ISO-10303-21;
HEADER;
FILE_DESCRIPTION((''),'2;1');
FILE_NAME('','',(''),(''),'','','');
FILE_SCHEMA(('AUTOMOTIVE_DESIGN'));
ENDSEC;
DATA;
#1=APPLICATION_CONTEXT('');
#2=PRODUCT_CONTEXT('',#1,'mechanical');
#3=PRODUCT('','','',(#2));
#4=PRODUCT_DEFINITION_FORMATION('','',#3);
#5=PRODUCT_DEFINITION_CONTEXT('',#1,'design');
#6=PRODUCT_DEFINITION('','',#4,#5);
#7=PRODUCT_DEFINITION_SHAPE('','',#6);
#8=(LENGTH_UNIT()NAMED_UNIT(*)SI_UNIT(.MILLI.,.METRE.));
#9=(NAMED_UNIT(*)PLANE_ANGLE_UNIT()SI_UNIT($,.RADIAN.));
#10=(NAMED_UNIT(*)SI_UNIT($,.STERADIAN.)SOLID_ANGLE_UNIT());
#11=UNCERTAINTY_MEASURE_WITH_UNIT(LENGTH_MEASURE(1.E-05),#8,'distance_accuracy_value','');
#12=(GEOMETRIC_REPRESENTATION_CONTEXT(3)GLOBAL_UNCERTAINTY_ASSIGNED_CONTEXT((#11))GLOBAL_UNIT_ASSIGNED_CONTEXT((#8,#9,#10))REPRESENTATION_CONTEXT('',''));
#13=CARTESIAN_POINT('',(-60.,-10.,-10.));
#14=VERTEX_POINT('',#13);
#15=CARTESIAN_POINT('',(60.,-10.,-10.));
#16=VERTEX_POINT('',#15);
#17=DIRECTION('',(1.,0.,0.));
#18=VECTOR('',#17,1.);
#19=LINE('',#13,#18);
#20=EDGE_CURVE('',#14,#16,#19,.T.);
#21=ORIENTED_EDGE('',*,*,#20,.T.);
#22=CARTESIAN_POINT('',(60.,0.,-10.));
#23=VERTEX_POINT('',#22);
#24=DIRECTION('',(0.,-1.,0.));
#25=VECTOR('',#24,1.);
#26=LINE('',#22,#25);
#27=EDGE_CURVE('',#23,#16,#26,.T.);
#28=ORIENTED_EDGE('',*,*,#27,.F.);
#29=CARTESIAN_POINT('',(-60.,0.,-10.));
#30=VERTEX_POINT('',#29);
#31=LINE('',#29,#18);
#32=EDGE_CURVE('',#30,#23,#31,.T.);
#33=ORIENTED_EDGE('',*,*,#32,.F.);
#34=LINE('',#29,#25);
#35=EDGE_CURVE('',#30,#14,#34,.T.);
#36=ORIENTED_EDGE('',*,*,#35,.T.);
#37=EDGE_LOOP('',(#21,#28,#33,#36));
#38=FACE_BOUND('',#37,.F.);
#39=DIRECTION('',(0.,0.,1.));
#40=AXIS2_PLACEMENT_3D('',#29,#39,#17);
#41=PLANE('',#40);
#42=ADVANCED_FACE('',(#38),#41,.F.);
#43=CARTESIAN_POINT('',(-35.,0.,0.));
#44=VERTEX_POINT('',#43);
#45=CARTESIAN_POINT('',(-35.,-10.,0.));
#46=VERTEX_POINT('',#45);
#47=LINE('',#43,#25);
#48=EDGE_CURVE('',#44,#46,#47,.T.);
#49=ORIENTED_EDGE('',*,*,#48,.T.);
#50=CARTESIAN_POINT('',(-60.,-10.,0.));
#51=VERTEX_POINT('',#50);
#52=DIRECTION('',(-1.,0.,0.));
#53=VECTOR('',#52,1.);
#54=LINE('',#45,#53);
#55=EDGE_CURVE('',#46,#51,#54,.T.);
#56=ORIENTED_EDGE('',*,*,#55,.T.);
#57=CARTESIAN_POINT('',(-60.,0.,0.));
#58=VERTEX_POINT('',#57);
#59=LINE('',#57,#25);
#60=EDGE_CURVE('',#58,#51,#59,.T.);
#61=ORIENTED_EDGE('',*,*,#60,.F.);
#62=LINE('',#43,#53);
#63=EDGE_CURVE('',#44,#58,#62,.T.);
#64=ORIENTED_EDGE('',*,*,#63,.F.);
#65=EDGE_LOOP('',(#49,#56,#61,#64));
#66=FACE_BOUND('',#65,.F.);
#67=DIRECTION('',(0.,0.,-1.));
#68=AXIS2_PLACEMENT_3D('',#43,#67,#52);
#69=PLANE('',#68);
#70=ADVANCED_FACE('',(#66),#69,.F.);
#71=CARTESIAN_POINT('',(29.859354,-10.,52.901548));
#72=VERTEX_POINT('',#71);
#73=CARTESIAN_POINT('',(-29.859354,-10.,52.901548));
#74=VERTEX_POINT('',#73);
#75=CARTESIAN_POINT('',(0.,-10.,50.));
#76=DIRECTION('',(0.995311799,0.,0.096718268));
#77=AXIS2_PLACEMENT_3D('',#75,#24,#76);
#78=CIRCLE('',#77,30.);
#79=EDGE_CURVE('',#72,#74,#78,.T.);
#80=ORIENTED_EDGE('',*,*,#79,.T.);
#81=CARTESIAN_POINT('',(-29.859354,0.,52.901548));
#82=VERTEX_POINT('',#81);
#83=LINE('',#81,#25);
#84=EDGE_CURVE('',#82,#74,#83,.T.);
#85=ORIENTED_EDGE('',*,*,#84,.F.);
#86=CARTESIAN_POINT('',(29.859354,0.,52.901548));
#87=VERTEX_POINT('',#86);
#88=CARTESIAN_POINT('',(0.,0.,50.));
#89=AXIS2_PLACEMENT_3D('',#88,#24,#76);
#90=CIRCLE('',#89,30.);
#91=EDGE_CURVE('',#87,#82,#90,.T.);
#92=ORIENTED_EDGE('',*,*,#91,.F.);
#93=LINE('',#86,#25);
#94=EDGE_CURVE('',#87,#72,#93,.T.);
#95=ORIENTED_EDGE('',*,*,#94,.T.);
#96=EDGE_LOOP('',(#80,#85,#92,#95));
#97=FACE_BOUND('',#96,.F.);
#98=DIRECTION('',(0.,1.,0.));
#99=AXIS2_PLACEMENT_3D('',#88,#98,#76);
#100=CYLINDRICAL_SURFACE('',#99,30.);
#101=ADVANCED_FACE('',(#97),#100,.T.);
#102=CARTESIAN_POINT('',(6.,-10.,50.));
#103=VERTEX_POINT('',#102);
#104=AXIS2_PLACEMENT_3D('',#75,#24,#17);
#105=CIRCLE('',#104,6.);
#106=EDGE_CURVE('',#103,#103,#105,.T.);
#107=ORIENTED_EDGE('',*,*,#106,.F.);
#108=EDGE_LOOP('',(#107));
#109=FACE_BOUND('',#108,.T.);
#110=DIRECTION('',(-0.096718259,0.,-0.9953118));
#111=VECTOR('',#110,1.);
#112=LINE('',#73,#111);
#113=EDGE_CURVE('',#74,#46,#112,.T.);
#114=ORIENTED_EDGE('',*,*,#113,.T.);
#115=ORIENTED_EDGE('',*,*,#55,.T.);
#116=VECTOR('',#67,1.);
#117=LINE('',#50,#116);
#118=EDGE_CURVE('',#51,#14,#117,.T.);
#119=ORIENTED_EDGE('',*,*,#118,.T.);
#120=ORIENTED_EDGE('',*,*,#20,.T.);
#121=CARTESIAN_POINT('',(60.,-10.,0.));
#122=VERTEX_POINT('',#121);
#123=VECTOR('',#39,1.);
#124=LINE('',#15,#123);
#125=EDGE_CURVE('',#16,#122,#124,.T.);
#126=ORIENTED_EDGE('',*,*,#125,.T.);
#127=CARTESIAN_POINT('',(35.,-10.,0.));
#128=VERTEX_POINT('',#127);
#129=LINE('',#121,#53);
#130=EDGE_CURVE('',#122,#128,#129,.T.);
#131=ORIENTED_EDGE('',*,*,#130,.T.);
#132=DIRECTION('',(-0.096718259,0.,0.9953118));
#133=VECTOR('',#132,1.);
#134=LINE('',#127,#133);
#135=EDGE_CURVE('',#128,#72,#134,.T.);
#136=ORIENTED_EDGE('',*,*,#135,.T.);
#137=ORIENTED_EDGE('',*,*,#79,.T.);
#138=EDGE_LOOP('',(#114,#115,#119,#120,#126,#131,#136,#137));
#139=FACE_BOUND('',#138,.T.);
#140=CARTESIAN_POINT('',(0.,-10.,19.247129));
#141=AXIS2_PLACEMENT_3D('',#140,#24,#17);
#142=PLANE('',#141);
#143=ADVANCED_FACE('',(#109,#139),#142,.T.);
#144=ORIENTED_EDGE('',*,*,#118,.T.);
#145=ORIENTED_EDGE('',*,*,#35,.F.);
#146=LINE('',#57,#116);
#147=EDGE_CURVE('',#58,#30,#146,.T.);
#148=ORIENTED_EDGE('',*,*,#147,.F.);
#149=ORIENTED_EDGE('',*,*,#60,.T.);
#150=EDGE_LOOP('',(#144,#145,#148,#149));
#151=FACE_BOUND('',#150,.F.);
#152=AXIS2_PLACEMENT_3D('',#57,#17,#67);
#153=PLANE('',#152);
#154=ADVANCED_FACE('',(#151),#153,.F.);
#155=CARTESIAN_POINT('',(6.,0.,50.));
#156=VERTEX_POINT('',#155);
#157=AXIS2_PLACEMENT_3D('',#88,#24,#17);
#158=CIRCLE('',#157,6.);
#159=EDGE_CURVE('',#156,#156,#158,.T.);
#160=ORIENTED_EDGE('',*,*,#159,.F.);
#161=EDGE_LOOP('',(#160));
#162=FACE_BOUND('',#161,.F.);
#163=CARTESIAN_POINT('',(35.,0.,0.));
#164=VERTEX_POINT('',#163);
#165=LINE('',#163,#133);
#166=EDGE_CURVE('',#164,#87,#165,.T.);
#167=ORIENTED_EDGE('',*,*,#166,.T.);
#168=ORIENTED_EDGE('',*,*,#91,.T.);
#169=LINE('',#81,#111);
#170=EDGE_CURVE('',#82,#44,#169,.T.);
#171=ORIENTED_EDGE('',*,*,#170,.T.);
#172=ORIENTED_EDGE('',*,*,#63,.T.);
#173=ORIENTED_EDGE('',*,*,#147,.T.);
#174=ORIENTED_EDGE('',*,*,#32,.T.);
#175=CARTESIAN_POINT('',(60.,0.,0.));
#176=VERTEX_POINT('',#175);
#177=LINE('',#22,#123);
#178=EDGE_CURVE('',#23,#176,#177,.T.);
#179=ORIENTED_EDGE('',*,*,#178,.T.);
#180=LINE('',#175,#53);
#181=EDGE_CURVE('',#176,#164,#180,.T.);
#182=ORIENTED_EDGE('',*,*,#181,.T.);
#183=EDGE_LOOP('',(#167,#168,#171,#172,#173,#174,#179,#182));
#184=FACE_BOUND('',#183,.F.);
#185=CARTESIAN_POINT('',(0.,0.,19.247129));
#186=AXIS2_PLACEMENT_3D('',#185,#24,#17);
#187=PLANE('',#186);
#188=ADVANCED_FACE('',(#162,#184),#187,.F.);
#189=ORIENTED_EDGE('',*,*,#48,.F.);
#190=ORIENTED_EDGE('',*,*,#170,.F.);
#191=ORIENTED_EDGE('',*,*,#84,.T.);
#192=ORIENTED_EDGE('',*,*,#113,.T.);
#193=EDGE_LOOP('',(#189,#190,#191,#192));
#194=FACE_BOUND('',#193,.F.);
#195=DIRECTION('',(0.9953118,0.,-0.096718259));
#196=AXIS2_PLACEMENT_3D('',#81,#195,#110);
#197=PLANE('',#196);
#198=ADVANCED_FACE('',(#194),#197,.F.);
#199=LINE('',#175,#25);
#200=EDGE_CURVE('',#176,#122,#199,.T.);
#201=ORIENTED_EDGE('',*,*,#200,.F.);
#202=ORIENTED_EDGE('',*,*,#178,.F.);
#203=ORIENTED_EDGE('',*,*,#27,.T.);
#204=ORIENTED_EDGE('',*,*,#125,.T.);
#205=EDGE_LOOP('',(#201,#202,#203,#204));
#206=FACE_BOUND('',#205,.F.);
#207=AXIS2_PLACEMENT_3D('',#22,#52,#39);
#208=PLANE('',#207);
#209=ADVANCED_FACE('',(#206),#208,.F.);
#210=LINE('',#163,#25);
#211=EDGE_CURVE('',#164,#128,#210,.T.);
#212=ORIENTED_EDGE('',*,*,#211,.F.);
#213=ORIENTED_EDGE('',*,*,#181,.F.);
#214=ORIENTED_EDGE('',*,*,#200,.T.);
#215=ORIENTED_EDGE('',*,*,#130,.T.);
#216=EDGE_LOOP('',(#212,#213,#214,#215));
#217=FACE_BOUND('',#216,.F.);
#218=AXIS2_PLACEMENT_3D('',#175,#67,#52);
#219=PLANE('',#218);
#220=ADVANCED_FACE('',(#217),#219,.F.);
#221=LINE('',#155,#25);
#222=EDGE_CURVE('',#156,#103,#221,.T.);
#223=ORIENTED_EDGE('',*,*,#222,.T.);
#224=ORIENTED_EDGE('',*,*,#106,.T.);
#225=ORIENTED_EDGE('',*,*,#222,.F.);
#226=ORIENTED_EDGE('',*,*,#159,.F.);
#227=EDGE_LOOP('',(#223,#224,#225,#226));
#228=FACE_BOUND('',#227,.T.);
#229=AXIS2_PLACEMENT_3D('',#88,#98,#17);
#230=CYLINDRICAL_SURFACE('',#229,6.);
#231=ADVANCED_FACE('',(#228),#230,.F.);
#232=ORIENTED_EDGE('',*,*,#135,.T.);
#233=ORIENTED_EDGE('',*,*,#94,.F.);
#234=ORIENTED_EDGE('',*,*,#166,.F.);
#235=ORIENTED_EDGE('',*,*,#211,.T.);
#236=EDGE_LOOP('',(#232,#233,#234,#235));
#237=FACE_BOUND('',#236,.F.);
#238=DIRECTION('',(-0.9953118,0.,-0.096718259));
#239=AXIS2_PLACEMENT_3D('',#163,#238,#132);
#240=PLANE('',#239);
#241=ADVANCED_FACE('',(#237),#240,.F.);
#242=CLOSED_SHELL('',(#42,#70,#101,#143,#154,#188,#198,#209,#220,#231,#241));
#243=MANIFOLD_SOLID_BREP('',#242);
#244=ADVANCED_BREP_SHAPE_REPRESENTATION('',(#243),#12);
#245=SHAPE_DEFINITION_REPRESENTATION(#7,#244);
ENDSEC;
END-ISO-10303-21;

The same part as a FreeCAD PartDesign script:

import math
import FreeCAD as App
import Part
import Sketcher

doc = App.newDocument("Part")
body = doc.addObject("PartDesign::Body", "Body")

# Sketch on XZ plane
sketch1 = body.newObject("Sketcher::SketchObject", "Sketch")
sketch1.AttachmentSupport = (doc.getObject("XZ_Plane"), [""])
sketch1.MapMode = "FlatFace"
sketch1.addGeometry(Part.LineSegment(App.Vector(35, 0, 0), App.Vector(30, 53, 0)), False)
sketch1.addGeometry(Part.ArcOfCircle(Part.Circle(App.Vector(0, 50, 0), App.Vector(0, 0, 1), 30), math.radians(6), math.radians(174)), False)
sketch1.addGeometry(Part.LineSegment(App.Vector(-30, 53, 0), App.Vector(-35, 0, 0)), False)
sketch1.addGeometry(Part.LineSegment(App.Vector(-35, 0, 0), App.Vector(-60, 0, 0)), False)
sketch1.addGeometry(Part.LineSegment(App.Vector(-60, 0, 0), App.Vector(-60, -10, 0)), False)
sketch1.addGeometry(Part.LineSegment(App.Vector(-60, -10, 0), App.Vector(60, -10, 0)), False)
sketch1.addGeometry(Part.LineSegment(App.Vector(60, -10, 0), App.Vector(60, 0, 0)), False)
sketch1.addGeometry(Part.LineSegment(App.Vector(60, 0, 0), App.Vector(35, 0, 0)), False)
sketch1.addGeometry(Part.Circle(App.Vector(0, 50, 0), App.Vector(0, 0, 1), 6), False)
sketch1.addConstraint(Sketcher.Constraint("Tangent", 0, 2, 1, 1))
sketch1.addConstraint(Sketcher.Constraint("Tangent", 1, 2, 2, 1))
sketch1.addConstraint(Sketcher.Constraint("Coincident", 2, 2, 3, 1))
sketch1.addConstraint(Sketcher.Constraint("Coincident", 3, 2, 4, 1))
sketch1.addConstraint(Sketcher.Constraint("Coincident", 4, 2, 5, 1))
sketch1.addConstraint(Sketcher.Constraint("Coincident", 5, 2, 6, 1))
sketch1.addConstraint(Sketcher.Constraint("Coincident", 6, 2, 7, 1))
sketch1.addConstraint(Sketcher.Constraint("Coincident", 7, 2, 0, 1))
sketch1.addConstraint(Sketcher.Constraint("Horizontal", 3))
sketch1.addConstraint(Sketcher.Constraint("Vertical", 4))
sketch1.addConstraint(Sketcher.Constraint("Horizontal", 5))
sketch1.addConstraint(Sketcher.Constraint("Vertical", 6))
sketch1.addConstraint(Sketcher.Constraint("Horizontal", 7))
sketch1.addConstraint(Sketcher.Constraint("Coincident", 8, 3, 1, 3))
sketch1.addConstraint(Sketcher.Constraint("Symmetric", 3, 2, 6, 2, -1, 1))
sketch1.addConstraint(Sketcher.Constraint("Symmetric", 0, 2, 1, 2, -2))
sketch1.addConstraint(Sketcher.Constraint("PointOnObject", 2, 2, -1))
sketch1.addConstraint(Sketcher.Constraint("Diameter", 8, 12.0))
sketch1.addConstraint(Sketcher.Constraint("Radius", 1, 30.0))
sketch1.addConstraint(Sketcher.Constraint("DistanceX", 3, 2, 3, 1, 25.0))
sketch1.addConstraint(Sketcher.Constraint("DistanceX", 5, 1, 5, 2, 120.0))
sketch1.addConstraint(Sketcher.Constraint("DistanceY", 4, 2, 4, 1, 10.0))
sketch1.addConstraint(Sketcher.Constraint("DistanceY", -1, 1, 1, 3, 50.0))
pad1 = body.newObject("PartDesign::Pad", "Pad")
pad1.Profile = sketch1
pad1.Length = 10

doc.recompute()
